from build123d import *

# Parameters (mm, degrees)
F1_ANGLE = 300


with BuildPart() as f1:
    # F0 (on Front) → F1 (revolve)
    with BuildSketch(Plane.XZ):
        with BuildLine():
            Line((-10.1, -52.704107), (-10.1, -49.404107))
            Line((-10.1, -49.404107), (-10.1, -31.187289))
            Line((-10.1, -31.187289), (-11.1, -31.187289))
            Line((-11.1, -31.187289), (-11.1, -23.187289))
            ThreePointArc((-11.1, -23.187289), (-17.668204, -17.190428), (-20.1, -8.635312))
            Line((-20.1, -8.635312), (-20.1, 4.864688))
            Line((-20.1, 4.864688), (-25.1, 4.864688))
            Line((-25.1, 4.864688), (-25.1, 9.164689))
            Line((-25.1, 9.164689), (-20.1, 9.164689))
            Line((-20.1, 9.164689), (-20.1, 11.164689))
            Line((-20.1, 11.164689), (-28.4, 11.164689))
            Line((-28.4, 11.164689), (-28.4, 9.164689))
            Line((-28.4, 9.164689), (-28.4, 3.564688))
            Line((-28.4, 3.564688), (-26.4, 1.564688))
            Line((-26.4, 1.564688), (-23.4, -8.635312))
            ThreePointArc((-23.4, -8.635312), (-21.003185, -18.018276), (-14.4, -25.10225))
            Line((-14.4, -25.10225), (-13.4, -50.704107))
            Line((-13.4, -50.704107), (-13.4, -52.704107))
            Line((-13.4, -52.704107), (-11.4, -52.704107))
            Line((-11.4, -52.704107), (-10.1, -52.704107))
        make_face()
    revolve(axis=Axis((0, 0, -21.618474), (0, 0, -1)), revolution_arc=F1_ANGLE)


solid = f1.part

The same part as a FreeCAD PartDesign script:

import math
import FreeCAD as App
import Part
import Sketcher

V = App.Vector
Q = App.Units.Quantity

doc = App.newDocument("Part")
body = doc.addObject("PartDesign::Body", "Body")

# Sketch on XZ plane
sketch1 = body.newObject("Sketcher::SketchObject", "Sketch")
sketch1.AttachmentSupport = (doc.getObject("XZ_Plane"), [""])
sketch1.MapMode = "FlatFace"
sketch1.addGeometry([
    Part.LineSegment(V(-10.1, -52.7, 0), V(-10.1, -31.2, 0)),  # 0
    Part.LineSegment(V(-10.1, -31.2, 0), V(-11.1, -31.2, 0)),  # 1
    Part.LineSegment(V(-11.1, -31.2, 0), V(-11.1, -23.2, 0)),  # 2
    Part.ArcOfCircle(Part.Circle(V(-3.8, -8.6, 0), V(0, 0, 1), 16.3), math.radians(180), math.radians(243)),  # 3
    Part.LineSegment(V(-20.1, -8.6, 0), V(-20.1, 4.9, 0)),  # 4
    Part.LineSegment(V(-20.1, 4.9, 0), V(-25.1, 4.9, 0)),  # 5
    Part.LineSegment(V(-25.1, 4.9, 0), V(-25.1, 9.2, 0)),  # 6
    Part.LineSegment(V(-25.1, 9.2, 0), V(-20.1, 9.2, 0)),  # 7
    Part.LineSegment(V(-20.1, 9.2, 0), V(-20.1, 11.2, 0)),  # 8
    Part.LineSegment(V(-20.1, 11.2, 0), V(-28.4, 11.2, 0)),  # 9
    Part.LineSegment(V(-28.4, 11.2, 0), V(-28.4, 3.6, 0)),  # 10
    Part.LineSegment(V(-28.4, 3.6, 0), V(-26.4, 1.6, 0)),  # 11
    Part.LineSegment(V(-26.4, 1.6, 0), V(-23.4, -8.6, 0)),  # 12
    Part.ArcOfCircle(Part.Circle(V(-3.8, -8.6, 0), V(0, 0, 1), 19.6), math.radians(180), math.radians(237)),  # 13
    Part.LineSegment(V(-14.4, -25.1, 0), V(-13.4, -50.7, 0)),  # 14
    Part.LineSegment(V(-13.4, -50.7, 0), V(-13.4, -52.7, 0)),  # 15
    Part.LineSegment(V(-13.4, -52.7, 0), V(-10.1, -52.7, 0)),  # 16
], False)
sketch1.addConstraint([
    Sketcher.Constraint("Coincident", 0, 2, 1, 1),
    Sketcher.Constraint("Coincident", 1, 2, 2, 1),
    Sketcher.Constraint("Coincident", 2, 2, 3, 2),
    Sketcher.Constraint("Tangent", 3, 1, 4, 1),
    Sketcher.Constraint("Coincident", 4, 2, 5, 1),
    Sketcher.Constraint("Coincident", 5, 2, 6, 1),
    Sketcher.Constraint("Coincident", 6, 2, 7, 1),
    Sketcher.Constraint("Coincident", 7, 2, 8, 1),
    Sketcher.Constraint("Coincident", 8, 2, 9, 1),
    Sketcher.Constraint("Coincident", 9, 2, 10, 1),
    Sketcher.Constraint("Coincident", 10, 2, 11, 1),
    Sketcher.Constraint("Coincident", 11, 2, 12, 1),
    Sketcher.Constraint("Coincident", 12, 2, 13, 1),
    Sketcher.Constraint("Coincident", 13, 2, 14, 1),
    Sketcher.Constraint("Coincident", 14, 2, 15, 1),
    Sketcher.Constraint("Coincident", 15, 2, 16, 1),
    Sketcher.Constraint("Coincident", 16, 2, 0, 1),
    Sketcher.Constraint("Vertical", 0),
    Sketcher.Constraint("Horizontal", 1),
    Sketcher.Constraint("Vertical", 2),
    Sketcher.Constraint("Vertical", 4),
    Sketcher.Constraint("Horizontal", 5),
    Sketcher.Constraint("Vertical", 6),
    Sketcher.Constraint("Horizontal", 7),
    Sketcher.Constraint("Vertical", 8),
    Sketcher.Constraint("Horizontal", 9),
    Sketcher.Constraint("Vertical", 10),
    Sketcher.Constraint("Vertical", 15),
    Sketcher.Constraint("Horizontal", 16),
    Sketcher.Constraint("Coincident", 13, 3, 3, 3),
    Sketcher.Constraint("Horizontal", 3, 1, 12, 2),
    Sketcher.Constraint("Vertical", 4, 2, 7, 2),
    Sketcher.Constraint("Equal", 8, 15),
    Sketcher.Constraint("DistanceX", 1, 2, 1, 1, 1.0),
    Sketcher.Constraint("DistanceX", 5, 2, 5, 1, 5.0),
    Sketcher.Constraint("DistanceY", 2, 1, 2, 2, 8.0),
    Sketcher.Constraint("DistanceY", 8, 1, 8, 2, 2.0),
    Sketcher.Constraint("Angle", 11, Q("-45 deg")),
    Sketcher.Constraint("DistanceX", 9, 2, 9, 1, 8.3),
    Sketcher.Constraint("DistanceX", 16, 1, 16, 2, 3.3),
    Sketcher.Constraint("DistanceY", 4, 1, 4, 2, 13.5),
    Sketcher.Constraint("DistanceY", 6, 1, 6, 2, 4.300001),
    Sketcher.Constraint("DistanceY", 10, 2, 10, 1, 7.600001),
    Sketcher.Constraint("DistanceX", 3, 1, 2, 2, 9.0),
    Sketcher.Constraint("DistanceX", 10, 2, 11, 2, 2.0),
    Sketcher.Constraint("DistanceX", 11, 2, 12, 2, 3.0),
    Sketcher.Constraint("DistanceX", 12, 2, 13, 2, 9.0),
    Sketcher.Constraint("DistanceX", 0, 2, -1, 1, 10.1),
    Sketcher.Constraint("Radius", 3, 16.264445),
    Sketcher.Constraint("DistanceY", 0, 1, 0, 2, 21.516818),
    Sketcher.Constraint("DistanceY", 0, 2, -1, 1, 31.187289),
])
revolution = body.newObject("PartDesign::Revolution", "Revolution")
revolution.Profile = sketch1
revolution.ReferenceAxis = (sketch1, ["V_Axis"])
revolution.Angle = 300
revolution.Reversed = True

doc.recompute()
